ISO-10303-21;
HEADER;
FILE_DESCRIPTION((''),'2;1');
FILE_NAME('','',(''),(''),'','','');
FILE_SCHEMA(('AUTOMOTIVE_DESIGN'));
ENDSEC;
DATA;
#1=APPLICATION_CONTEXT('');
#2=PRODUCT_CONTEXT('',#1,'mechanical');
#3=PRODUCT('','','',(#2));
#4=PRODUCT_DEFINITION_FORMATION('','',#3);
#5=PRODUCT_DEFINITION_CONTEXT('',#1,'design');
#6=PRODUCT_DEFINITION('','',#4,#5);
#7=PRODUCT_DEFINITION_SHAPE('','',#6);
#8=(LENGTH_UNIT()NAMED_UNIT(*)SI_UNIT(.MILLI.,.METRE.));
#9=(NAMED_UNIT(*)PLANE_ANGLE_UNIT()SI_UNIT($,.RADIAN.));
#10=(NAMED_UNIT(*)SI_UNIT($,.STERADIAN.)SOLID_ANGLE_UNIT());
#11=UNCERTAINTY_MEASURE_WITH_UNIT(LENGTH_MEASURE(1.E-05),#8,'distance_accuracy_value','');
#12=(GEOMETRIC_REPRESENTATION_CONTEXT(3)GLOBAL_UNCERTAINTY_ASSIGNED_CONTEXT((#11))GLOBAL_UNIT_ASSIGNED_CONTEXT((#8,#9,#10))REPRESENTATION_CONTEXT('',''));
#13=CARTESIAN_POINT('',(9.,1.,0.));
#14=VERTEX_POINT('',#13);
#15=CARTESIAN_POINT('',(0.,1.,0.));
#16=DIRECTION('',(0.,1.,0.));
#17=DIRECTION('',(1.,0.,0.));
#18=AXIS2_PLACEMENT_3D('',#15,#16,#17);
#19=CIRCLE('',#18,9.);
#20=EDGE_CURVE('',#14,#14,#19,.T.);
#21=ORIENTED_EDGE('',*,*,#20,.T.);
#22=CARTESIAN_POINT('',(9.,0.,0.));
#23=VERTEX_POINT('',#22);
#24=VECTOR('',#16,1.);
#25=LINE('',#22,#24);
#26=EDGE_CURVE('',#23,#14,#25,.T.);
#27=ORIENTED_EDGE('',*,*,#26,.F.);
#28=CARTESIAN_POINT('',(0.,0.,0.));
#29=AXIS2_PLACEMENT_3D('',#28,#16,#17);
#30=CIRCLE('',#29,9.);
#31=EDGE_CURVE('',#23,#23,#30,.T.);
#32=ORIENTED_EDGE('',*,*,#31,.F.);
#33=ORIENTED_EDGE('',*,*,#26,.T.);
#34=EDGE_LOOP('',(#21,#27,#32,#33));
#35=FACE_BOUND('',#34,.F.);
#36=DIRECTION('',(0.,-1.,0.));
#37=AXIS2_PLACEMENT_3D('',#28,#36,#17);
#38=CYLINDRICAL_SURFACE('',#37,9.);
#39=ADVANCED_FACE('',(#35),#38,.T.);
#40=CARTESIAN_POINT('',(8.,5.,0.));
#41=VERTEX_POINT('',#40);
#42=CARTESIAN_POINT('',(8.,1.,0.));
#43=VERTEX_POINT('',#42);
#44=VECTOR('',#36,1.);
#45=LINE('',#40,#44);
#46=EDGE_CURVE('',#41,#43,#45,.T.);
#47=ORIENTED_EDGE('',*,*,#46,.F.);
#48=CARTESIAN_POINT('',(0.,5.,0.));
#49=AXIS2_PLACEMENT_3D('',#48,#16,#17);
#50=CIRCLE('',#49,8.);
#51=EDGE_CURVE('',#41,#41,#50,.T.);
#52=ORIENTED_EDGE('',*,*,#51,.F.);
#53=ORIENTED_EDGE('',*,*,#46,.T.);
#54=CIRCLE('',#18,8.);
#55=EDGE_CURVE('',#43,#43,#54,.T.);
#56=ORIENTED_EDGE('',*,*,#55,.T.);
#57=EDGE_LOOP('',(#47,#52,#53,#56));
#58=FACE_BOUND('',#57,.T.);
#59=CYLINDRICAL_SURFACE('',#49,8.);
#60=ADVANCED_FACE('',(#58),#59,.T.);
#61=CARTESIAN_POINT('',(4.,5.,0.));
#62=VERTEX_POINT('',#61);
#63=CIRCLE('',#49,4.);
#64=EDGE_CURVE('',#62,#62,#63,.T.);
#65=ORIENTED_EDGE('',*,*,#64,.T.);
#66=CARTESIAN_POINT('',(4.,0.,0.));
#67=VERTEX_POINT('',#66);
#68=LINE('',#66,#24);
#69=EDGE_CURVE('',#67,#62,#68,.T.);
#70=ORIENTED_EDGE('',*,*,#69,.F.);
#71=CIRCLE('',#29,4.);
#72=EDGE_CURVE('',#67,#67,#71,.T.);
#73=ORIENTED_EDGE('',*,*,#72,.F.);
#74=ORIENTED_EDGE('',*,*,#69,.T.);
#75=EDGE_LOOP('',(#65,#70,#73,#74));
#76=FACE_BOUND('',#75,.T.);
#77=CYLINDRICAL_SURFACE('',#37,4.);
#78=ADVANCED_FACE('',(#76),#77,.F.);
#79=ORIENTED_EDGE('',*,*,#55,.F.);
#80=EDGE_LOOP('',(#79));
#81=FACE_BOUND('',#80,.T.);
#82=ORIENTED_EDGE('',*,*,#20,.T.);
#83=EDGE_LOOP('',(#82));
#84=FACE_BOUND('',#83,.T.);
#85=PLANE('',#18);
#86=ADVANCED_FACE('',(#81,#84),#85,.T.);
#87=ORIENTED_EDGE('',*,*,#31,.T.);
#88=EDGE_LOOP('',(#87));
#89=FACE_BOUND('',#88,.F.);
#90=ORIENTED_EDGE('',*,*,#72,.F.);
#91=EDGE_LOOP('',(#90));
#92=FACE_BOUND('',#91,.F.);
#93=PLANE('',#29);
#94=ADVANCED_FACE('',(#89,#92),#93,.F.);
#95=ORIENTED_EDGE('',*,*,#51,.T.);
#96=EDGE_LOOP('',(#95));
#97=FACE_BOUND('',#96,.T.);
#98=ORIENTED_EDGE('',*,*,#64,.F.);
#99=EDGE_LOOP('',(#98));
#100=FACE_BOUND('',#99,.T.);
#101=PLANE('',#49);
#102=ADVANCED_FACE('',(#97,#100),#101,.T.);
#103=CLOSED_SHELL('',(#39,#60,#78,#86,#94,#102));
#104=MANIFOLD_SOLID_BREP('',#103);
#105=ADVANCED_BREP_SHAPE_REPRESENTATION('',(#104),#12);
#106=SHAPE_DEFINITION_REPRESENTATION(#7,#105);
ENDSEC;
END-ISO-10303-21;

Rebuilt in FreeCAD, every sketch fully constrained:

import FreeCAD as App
import Part
import Sketcher

doc = App.newDocument("Part")
body = doc.addObject("PartDesign::Body", "Body")

# Sketch on XZ plane
sketch1 = doc.addObject("Sketcher::SketchObject", "Sketch")
body.addObject(sketch1)
sketch1.AttachmentSupport = (doc.XZ_Plane, [""])
sketch1.MapMode = "FlatFace"
sketch1.addGeometry([
    Part.Circle(App.Vector(0, 0, 0), App.Vector(0, 0, 1), 9),
    Part.Circle(App.Vector(0, 0, 0), App.Vector(0, 0, 1), 4),
], False)
sketch1.addConstraint([
    Sketcher.Constraint("Coincident", 0, 3, -1, 1),
    Sketcher.Constraint("Coincident", 1, 3, -1, 1),
    Sketcher.Constraint("Diameter", 0, 18.0),
    Sketcher.Constraint("Diameter", 1, 8.0),
])
pad1 = doc.addObject("PartDesign::Pad", "Pad")
body.addObject(pad1)
pad1.Profile = sketch1
pad1.Length = 5
pad1.Reversed = True

# Sketch on XZ plane
sketch2 = doc.addObject("Sketcher::SketchObject", "Sketch001")
body.addObject(sketch2)
sketch2.AttachmentSupport = (doc.XZ_Plane, [""])
sketch2.MapMode = "FlatFace"
sketch2.AttachmentOffset = App.Placement(App.Vector(0, 0, -5), App.Rotation())
sketch2.addGeometry([
    Part.Circle(App.Vector(0, 0, 0), App.Vector(0, 0, 1), 9),
    Part.Circle(App.Vector(0, 0, 0), App.Vector(0, 0, 1), 8),
], False)
sketch2.addConstraint([
    Sketcher.Constraint("Coincident", 0, 3, -1, 1),
    Sketcher.Constraint("Coincident", 1, 3, -1, 1),
    Sketcher.Constraint("Diameter", 0, 18.0),
    Sketcher.Constraint("Diameter", 1, 16.0),
])
pocket1 = doc.addObject("PartDesign::Pocket", "Pocket")
body.addObject(pocket1)
pocket1.Profile = sketch2
pocket1.Length = 4
pocket1.Reversed = True

doc.recompute()
